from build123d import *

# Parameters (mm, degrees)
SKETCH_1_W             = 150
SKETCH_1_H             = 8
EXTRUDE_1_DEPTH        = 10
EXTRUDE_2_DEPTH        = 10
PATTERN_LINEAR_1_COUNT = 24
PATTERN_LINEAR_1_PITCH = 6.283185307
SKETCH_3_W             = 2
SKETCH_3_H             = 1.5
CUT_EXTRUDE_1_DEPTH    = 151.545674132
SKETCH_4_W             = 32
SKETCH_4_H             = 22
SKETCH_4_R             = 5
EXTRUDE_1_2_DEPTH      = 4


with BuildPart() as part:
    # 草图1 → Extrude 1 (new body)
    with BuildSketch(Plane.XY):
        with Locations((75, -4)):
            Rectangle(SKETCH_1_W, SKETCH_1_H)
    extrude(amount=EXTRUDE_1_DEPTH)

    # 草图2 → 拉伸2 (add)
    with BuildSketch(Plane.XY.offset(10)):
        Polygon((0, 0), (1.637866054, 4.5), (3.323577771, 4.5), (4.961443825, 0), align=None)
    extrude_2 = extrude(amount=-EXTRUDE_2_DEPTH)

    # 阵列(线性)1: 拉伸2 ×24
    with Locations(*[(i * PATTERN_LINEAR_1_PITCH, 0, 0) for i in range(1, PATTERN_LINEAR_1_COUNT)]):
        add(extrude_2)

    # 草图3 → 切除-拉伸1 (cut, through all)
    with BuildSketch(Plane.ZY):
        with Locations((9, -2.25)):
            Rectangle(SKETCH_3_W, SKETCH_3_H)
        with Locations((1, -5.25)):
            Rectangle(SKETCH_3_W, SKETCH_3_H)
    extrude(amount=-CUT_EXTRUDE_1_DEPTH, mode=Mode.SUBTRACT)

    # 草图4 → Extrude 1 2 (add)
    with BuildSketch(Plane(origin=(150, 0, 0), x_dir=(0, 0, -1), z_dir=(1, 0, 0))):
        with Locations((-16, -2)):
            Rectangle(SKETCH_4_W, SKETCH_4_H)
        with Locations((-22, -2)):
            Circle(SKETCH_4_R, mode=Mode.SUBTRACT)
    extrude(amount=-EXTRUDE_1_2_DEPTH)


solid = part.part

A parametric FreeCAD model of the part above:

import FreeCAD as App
import Part
import Sketcher
from FreeCAD import Vector
Q = App.Units.Quantity

doc = App.newDocument("Part")
body = doc.addObject("PartDesign::Body", "Body")

# Sketch on XY plane
sketch1 = body.newObject("Sketcher::SketchObject", "Sketch")
sketch1.AttachmentSupport = (doc.getObject("XY_Plane"), [""])
sketch1.MapMode = "FlatFace"
sketch1.addGeometry(Part.LineSegment(Vector(0, 0, 0), Vector(0, -8, 0)), False)
sketch1.addGeometry(Part.LineSegment(Vector(0, -8, 0), Vector(150, -8, 0)), False)
sketch1.addGeometry(Part.LineSegment(Vector(150, -8, 0), Vector(150, 0, 0)), False)
sketch1.addGeometry(Part.LineSegment(Vector(150, 0, 0), Vector(0, 0, 0)), False)
sketch1.addConstraint(Sketcher.Constraint("Coincident", 0, 2, 1, 1))
sketch1.addConstraint(Sketcher.Constraint("Coincident", 1, 2, 2, 1))
sketch1.addConstraint(Sketcher.Constraint("Coincident", 2, 2, 3, 1))
sketch1.addConstraint(Sketcher.Constraint("Coincident", 3, 2, 0, 1))
sketch1.addConstraint(Sketcher.Constraint("Vertical", 0))
sketch1.addConstraint(Sketcher.Constraint("Horizontal", 1))
sketch1.addConstraint(Sketcher.Constraint("Vertical", 2))
sketch1.addConstraint(Sketcher.Constraint("Horizontal", 3))
sketch1.addConstraint(Sketcher.Constraint("Coincident", 3, 2, -1, 1))
sketch1.addConstraint(Sketcher.Constraint("DistanceX", 1, 1, 1, 2, 150.0))
sketch1.addConstraint(Sketcher.Constraint("DistanceY", 0, 2, 0, 1, 8.0))
pad1 = body.newObject("PartDesign::Pad", "Pad")
pad1.Profile = sketch1
pad1.Length = 10

# Sketch on XY plane
sketch2 = body.newObject("Sketcher::SketchObject", "Sketch001")
sketch2.AttachmentSupport = (doc.getObject("XY_Plane"), [""])
sketch2.MapMode = "FlatFace"
sketch2.AttachmentOffset = App.Placement(Vector(0, 0, 10), App.Rotation())
sketch2.addGeometry(Part.LineSegment(Vector(1.6, 4.5, 0), Vector(0, 0, 0)), False)
sketch2.addGeometry(Part.LineSegment(Vector(0, 0, 0), Vector(5, 0, 0)), False)
sketch2.addGeometry(Part.LineSegment(Vector(5, 0, 0), Vector(3.3, 4.5, 0)), False)
sketch2.addGeometry(Part.LineSegment(Vector(3.3, 4.5, 0), Vector(1.6, 4.5, 0)), False)
sketch2.addConstraint(Sketcher.Constraint("Coincident", 0, 2, 1, 1))
sketch2.addConstraint(Sketcher.Constraint("Coincident", 1, 2, 2, 1))
sketch2.addConstraint(Sketcher.Constraint("Coincident", 2, 2, 3, 1))
sketch2.addConstraint(Sketcher.Constraint("Coincident", 3, 2, 0, 1))
sketch2.addConstraint(Sketcher.Constraint("Horizontal", 1))
sketch2.addConstraint(Sketcher.Constraint("Horizontal", 3))
sketch2.addConstraint(Sketcher.Constraint("Coincident", 0, 2, -1, 1))
sketch2.addConstraint(Sketcher.Constraint("Equal", 0, 2))
sketch2.addConstraint(Sketcher.Constraint("Angle", 0, Q("-110 deg")))
sketch2.addConstraint(Sketcher.Constraint("DistanceY", -1, 1, 2, 2, 4.5))
sketch2.addConstraint(Sketcher.Constraint("DistanceX", 3, 2, 3, 1, 1.685712))
pad2 = body.newObject("PartDesign::Pad", "Pad001")
pad2.Profile = sketch2
pad2.Length = 10
pad2.Reversed = True
doc.recompute()

linearpattern = body.newObject("PartDesign::LinearPattern", "LinearPattern")
linearpattern.Originals = [pad2]
linearpattern.Direction = (doc.getObject("X_Axis"), [""])
linearpattern.Mode = "offset"
linearpattern.Offset = 6.283185
linearpattern.Occurrences = 24
body.Tip = linearpattern

# Sketch on YZ plane
sketch3 = body.newObject("Sketcher::SketchObject", "Sketch002")
sketch3.AttachmentSupport = (doc.getObject("YZ_Plane"), [""])
sketch3.MapMode = "FlatFace"
sketch3.addGeometry(Part.LineSegment(Vector(-1.5, 8, 0), Vector(-3, 8, 0)), False)
sketch3.addGeometry(Part.LineSegment(Vector(-3, 8, 0), Vector(-3, 10, 0)), False)
sketch3.addGeometry(Part.LineSegment(Vector(-3, 10, 0), Vector(-1.5, 10, 0)), False)
sketch3.addGeometry(Part.LineSegment(Vector(-1.5, 10, 0), Vector(-1.5, 8, 0)), False)
sketch3.addGeometry(Part.LineSegment(Vector(-4.5, 0, 0), Vector(-6, 0, 0)), False)
sketch3.addGeometry(Part.LineSegment(Vector(-6, 0, 0), Vector(-6, 2, 0)), False)
sketch3.addGeometry(Part.LineSegment(Vector(-6, 2, 0), Vector(-4.5, 2, 0)), False)
sketch3.addGeometry(Part.LineSegment(Vector(-4.5, 2, 0), Vector(-4.5, 0, 0)), False)
sketch3.addConstraint(Sketcher.Constraint("Coincident", 0, 2, 1, 1))
sketch3.addConstraint(Sketcher.Constraint("Coincident", 1, 2, 2, 1))
sketch3.addConstraint(Sketcher.Constraint("Coincident", 2, 2, 3, 1))
sketch3.addConstraint(Sketcher.Constraint("Coincident", 3, 2, 0, 1))
sketch3.addConstraint(Sketcher.Constraint("Coincident", 4, 2, 5, 1))
sketch3.addConstraint(Sketcher.Constraint("Coincident", 5, 2, 6, 1))
sketch3.addConstraint(Sketcher.Constraint("Coincident", 6, 2, 7, 1))
sketch3.addConstraint(Sketcher.Constraint("Coincident", 7, 2, 4, 1))
sketch3.addConstraint(Sketcher.Constraint("Horizontal", 0))
sketch3.addConstraint(Sketcher.Constraint("Vertical", 1))
sketch3.addConstraint(Sketcher.Constraint("Horizontal", 2))
sketch3.addConstraint(Sketcher.Constraint("Vertical", 3))
sketch3.addConstraint(Sketcher.Constraint("Horizontal", 4))
sketch3.addConstraint(Sketcher.Constraint("Vertical", 5))
sketch3.addConstraint(Sketcher.Constraint("Horizontal", 6))
sketch3.addConstraint(Sketcher.Constraint("Vertical", 7))
sketch3.addConstraint(Sketcher.Constraint("PointOnObject", 4, 2, -1))
sketch3.addConstraint(Sketcher.Constraint("Equal", 2, 4))
sketch3.addConstraint(Sketcher.Constraint("Equal", 3, 5))
sketch3.addConstraint(Sketcher.Constraint("DistanceY", 1, 1, 1, 2, 2.0))
sketch3.addConstraint(Sketcher.Constraint("DistanceX", 0, 2, 0, 1, 1.5))
sketch3.addConstraint(Sketcher.Constraint("DistanceX", 0, 2, -1, 1, 3.0))
sketch3.addConstraint(Sketcher.Constraint("DistanceY", -1, 1, 0, 2, 8.0))
sketch3.addConstraint(Sketcher.Constraint("DistanceX", 4, 2, -1, 1, 6.0))
pocket1 = body.newObject("PartDesign::Pocket", "Pocket")
pocket1.Profile = sketch3
pocket1.Type = "ThroughAll"
pocket1.Reversed = True

# Sketch on YZ plane
sketch4 = body.newObject("Sketcher::SketchObject", "Sketch003")
sketch4.AttachmentSupport = (doc.getObject("YZ_Plane"), [""])
sketch4.MapMode = "FlatFace"
sketch4.AttachmentOffset = App.Placement(Vector(0, 0, 150), App.Rotation())
sketch4.addGeometry(Part.LineSegment(Vector(9, 32, 0), Vector(-13, 32, 0)), False)
sketch4.addGeometry(Part.LineSegment(Vector(-13, 32, 0), Vector(-13, 0, 0)), False)
sketch4.addGeometry(Part.LineSegment(Vector(-13, 0, 0), Vector(9, 0, 0)), False)
sketch4.addGeometry(Part.LineSegment(Vector(9, 0, 0), Vector(9, 32, 0)), False)
sketch4.addGeometry(Part.Circle(Vector(-2, 22, 0), Vector(0, 0, 1), 5), False)
sketch4.addConstraint(Sketcher.Constraint("Coincident", 0, 2, 1, 1))
sketch4.addConstraint(Sketcher.Constraint("Coincident", 1, 2, 2, 1))
sketch4.addConstraint(Sketcher.Constraint("Coincident", 2, 2, 3, 1))
sketch4.addConstraint(Sketcher.Constraint("Coincident", 3, 2, 0, 1))
sketch4.addConstraint(Sketcher.Constraint("Horizontal", 0))
sketch4.addConstraint(Sketcher.Constraint("Vertical", 1))
sketch4.addConstraint(Sketcher.Constraint("Horizontal", 2))
sketch4.addConstraint(Sketcher.Constraint("Vertical", 3))
sketch4.addConstraint(Sketcher.Constraint("PointOnObject", 1, 2, -1))
sketch4.addConstraint(Sketcher.Constraint("Diameter", 4, 10.0))
sketch4.addConstraint(Sketcher.Constraint("DistanceX", 0, 2, 0, 1, 22.0))
sketch4.addConstraint(Sketcher.Constraint("DistanceY", 1, 2, 1, 1, 32.0))
sketch4.addConstraint(Sketcher.Constraint("DistanceX", 4, 3, -1, 1, 2.0))
sketch4.addConstraint(Sketcher.Constraint("DistanceY", -1, 1, 4, 3, 22.0))
sketch4.addConstraint(Sketcher.Constraint("DistanceX", 0, 2, -1, 1, 13.0))
pad3 = body.newObject("PartDesign::Pad", "Pad002")
pad3.Profile = sketch4
pad3.Length = 4
pad3.Reversed = True

doc.recompute()
